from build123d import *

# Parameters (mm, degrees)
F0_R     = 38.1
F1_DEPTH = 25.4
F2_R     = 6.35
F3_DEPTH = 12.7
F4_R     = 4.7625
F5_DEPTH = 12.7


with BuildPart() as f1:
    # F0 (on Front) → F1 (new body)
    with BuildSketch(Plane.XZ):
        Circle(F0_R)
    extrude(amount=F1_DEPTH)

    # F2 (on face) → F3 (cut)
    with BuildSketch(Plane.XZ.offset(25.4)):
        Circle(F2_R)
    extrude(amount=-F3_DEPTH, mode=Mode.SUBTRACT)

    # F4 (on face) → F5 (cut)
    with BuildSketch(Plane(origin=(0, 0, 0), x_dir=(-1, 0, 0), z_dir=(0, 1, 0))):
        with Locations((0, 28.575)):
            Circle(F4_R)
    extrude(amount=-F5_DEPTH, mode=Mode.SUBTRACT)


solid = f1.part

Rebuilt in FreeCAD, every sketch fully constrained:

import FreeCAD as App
import Part
import Sketcher
Q = App.Units.Quantity

doc = App.newDocument("Part")
params = doc.addObject("Spreadsheet::Sheet", "Params")
for row, (alias, value) in enumerate([
    ("sketch1_diameter", "3 in"),
    ("pad1_length", "1 in"),
    ("sketch2_diameter", "0.5 in"),
    ("pocket1_length", "0.5 in"),
    ("sketch3_diameter", "0.375 in"),
    ("pocket2_length", "0.5 in"),
], start=1):
    params.set(f"A{row}", alias)
    params.set(f"B{row}", "=" + value)
    params.setAlias(f"B{row}", alias)

body = doc.addObject("PartDesign::Body", "Body")

# Sketch on XZ plane
sketch1 = doc.addObject("Sketcher::SketchObject", "Sketch")
body.addObject(sketch1)
sketch1.AttachmentSupport = (doc.XZ_Plane, [""])
sketch1.MapMode = "FlatFace"
sketch1.addGeometry(Part.Circle(App.Vector(0, 0, 0), App.Vector(0, 0, 1), 38), False)
sketch1.addConstraint([
    Sketcher.Constraint("Coincident", 0, 3, -1, 1),
    Sketcher.Constraint("Diameter", 0, Q("3 in")),
])
sketch1.setExpression("Constraints[1]", "Params.sketch1_diameter")
pad1 = doc.addObject("PartDesign::Pad", "Pad")
body.addObject(pad1)
pad1.Profile = sketch1
pad1.setExpression("Length", "Params.pad1_length")

# Sketch on XZ plane
sketch2 = doc.addObject("Sketcher::SketchObject", "Sketch001")
body.addObject(sketch2)
sketch2.AttachmentSupport = (doc.XZ_Plane, [""])
sketch2.MapMode = "FlatFace"
sketch2.AttachmentOffset = App.Placement(App.Vector(0, 0, 1 * 25.4), App.Rotation())
sketch2.addGeometry(Part.Circle(App.Vector(0, 0, 0), App.Vector(0, 0, 1), 6), False)
sketch2.addConstraint([
    Sketcher.Constraint("Coincident", 0, 3, -1, 1),
    Sketcher.Constraint("Diameter", 0, Q("0.5 in")),
])
sketch2.setExpression("Constraints[1]", "Params.sketch2_diameter")
pocket1 = doc.addObject("PartDesign::Pocket", "Pocket")
body.addObject(pocket1)
pocket1.Profile = sketch2
pocket1.setExpression("Length", "Params.pocket1_length")

# Sketch on XZ plane
sketch3 = doc.addObject("Sketcher::SketchObject", "Sketch002")
body.addObject(sketch3)
sketch3.AttachmentSupport = (doc.XZ_Plane, [""])
sketch3.MapMode = "FlatFace"
sketch3.addGeometry(Part.Circle(App.Vector(0, 28.6, 0), App.Vector(0, 0, 1), 4.8), False)
sketch3.addConstraint([
    Sketcher.Constraint("PointOnObject", 0, 3, -2),
    Sketcher.Constraint("Diameter", 0, Q("0.375 in")),
    Sketcher.Constraint("DistanceY", -1, 1, 0, 3, Q("1.125 in")),
])
sketch3.setExpression("Constraints[1]", "Params.sketch3_diameter")
pocket2 = doc.addObject("PartDesign::Pocket", "Pocket001")
body.addObject(pocket2)
pocket2.Profile = sketch3
pocket2.setExpression("Length", "Params.pocket2_length")
pocket2.Reversed = True

doc.recompute()
